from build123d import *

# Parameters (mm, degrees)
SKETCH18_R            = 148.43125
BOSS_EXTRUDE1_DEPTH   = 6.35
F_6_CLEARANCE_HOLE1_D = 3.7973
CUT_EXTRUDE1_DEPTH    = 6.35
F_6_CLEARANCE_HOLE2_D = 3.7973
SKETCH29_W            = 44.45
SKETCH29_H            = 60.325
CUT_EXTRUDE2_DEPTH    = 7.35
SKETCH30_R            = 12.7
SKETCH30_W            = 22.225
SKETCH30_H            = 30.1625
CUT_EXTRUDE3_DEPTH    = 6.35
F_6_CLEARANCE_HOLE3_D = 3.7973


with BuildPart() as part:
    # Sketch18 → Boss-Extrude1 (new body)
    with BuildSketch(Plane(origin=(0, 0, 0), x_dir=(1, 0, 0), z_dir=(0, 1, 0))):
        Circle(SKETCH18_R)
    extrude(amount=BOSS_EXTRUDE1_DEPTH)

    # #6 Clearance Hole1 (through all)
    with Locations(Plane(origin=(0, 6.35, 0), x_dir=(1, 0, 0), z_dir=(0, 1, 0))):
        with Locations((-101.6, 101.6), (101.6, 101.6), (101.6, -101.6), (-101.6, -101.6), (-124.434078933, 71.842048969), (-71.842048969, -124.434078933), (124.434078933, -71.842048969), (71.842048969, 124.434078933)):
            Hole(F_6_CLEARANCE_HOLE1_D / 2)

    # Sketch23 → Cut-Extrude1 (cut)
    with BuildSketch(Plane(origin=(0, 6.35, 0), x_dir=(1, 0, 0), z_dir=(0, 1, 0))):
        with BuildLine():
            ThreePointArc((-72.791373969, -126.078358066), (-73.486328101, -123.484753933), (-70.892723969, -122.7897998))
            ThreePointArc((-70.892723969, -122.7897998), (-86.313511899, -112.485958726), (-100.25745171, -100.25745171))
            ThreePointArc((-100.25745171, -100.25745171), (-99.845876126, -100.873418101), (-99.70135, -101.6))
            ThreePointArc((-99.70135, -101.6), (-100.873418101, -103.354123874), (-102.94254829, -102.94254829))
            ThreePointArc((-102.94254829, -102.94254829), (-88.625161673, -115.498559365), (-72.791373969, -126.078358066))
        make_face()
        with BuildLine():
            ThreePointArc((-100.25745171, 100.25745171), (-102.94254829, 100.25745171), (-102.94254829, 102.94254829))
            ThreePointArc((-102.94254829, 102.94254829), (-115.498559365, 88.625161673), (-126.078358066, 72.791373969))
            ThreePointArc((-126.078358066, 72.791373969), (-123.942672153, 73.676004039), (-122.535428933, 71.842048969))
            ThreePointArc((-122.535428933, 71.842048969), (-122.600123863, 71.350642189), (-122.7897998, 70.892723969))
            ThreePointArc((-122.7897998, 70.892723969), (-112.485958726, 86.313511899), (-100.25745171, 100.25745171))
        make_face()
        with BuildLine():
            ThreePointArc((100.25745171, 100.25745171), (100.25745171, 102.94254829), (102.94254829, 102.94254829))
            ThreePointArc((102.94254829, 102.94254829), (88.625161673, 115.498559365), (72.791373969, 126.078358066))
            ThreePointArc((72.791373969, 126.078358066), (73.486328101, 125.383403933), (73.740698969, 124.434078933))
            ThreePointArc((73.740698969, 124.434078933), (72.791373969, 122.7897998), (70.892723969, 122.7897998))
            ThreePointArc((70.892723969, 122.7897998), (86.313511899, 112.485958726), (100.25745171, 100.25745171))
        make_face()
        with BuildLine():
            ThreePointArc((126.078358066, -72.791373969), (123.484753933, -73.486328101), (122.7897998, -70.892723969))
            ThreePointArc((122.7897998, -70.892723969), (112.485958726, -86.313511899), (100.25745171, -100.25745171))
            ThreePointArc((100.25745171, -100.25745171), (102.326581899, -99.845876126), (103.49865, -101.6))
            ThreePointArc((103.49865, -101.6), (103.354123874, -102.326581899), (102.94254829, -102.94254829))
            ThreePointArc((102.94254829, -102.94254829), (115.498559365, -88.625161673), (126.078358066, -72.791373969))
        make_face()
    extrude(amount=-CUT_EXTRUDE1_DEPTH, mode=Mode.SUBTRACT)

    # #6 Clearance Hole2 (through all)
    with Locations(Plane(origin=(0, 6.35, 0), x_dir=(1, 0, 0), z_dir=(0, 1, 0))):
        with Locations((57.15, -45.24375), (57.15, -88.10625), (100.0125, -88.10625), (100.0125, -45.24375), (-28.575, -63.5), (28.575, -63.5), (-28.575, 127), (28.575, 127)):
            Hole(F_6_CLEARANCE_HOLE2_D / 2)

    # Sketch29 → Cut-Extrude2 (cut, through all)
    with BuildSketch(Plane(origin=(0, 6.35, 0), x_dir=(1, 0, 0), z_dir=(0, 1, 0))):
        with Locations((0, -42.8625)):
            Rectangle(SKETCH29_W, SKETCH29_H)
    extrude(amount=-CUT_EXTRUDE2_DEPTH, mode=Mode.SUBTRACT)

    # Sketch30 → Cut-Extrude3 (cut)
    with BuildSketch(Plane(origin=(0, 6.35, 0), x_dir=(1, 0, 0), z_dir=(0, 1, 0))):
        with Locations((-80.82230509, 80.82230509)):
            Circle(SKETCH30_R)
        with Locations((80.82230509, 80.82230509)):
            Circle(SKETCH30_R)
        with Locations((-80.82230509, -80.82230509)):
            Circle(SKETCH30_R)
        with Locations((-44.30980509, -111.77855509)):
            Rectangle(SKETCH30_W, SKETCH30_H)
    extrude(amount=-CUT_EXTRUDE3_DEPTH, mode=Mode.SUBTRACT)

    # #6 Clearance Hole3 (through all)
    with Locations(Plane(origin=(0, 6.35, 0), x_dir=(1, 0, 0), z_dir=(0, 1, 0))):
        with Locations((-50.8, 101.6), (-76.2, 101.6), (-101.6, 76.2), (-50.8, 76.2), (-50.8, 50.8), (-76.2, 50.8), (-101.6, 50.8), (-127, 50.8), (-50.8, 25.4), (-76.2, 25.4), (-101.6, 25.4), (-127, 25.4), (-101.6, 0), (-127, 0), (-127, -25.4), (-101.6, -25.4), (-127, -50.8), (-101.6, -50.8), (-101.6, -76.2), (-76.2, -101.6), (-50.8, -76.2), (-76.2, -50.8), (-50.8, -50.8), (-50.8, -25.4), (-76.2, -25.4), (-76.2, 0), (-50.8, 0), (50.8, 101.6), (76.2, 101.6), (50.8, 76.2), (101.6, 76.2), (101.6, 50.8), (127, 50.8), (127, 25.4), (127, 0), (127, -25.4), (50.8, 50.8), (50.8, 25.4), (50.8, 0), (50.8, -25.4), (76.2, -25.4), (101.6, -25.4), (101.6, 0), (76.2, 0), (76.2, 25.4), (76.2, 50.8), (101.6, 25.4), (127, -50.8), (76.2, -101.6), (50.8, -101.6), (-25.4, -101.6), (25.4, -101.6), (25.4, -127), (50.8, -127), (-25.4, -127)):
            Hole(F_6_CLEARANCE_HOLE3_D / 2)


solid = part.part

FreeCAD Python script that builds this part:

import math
import FreeCAD as App
import Part
import Sketcher

V = App.Vector
Q = App.Units.Quantity


def add_polygon(sketch, points):
    """Adds a closed chain of lines whose ends are joined by coincident constraints."""
    first, n = sketch.GeometryCount, len(points)
    for a, b in zip(points, points[1:] + points[:1]):
        sketch.addGeometry(Part.LineSegment(App.Vector(*a, 0), App.Vector(*b, 0)), False)
    for i in range(n):
        sketch.addConstraint(Sketcher.Constraint("Coincident", first + i, 2, first + (i + 1) % n, 1))

doc = App.newDocument("Part")
body = doc.addObject("PartDesign::Body", "Body")

# Sketch on XZ plane
sketch1 = doc.addObject("Sketcher::SketchObject", "Sketch")
body.addObject(sketch1)
sketch1.AttachmentSupport = (doc.XZ_Plane, [""])
sketch1.MapMode = "FlatFace"
sketch1.addGeometry(Part.Circle(V(0, 0, 0), V(0, 0, 1), 148.43125), False)
sketch1.addConstraint([
    Sketcher.Constraint("Coincident", 0, 3, -1, 1),
    Sketcher.Constraint("Diameter", 0, Q("11.6875 in")),
])
pad1 = doc.addObject("PartDesign::Pad", "Pad")
body.addObject(pad1)
pad1.Profile = sketch1
pad1.Length = Q("0.25 in")
pad1.Reversed = True

# Sketch on XZ plane
sketch2 = doc.addObject("Sketcher::SketchObject", "Sketch001")
body.addObject(sketch2)
sketch2.AttachmentSupport = (doc.XZ_Plane, [""])
sketch2.MapMode = "FlatFace"
sketch2.AttachmentOffset = App.Placement(V(0, 0, -0.25 * 25.4), App.Rotation())
sketch2.addGeometry([
    Part.Circle(V(-101.6, -101.6, 0), V(0, 0, 1), 1.89865),  # 0
    Part.Circle(V(101.6, -101.6, 0), V(0, 0, 1), 1.89865),  # 1
    Part.Circle(V(101.6, 101.6, 0), V(0, 0, 1), 1.89865),  # 2
    Part.Circle(V(-101.6, 101.6, 0), V(0, 0, 1), 1.89865),  # 3
    Part.Circle(V(-124.434079, -71.842049, 0), V(0, 0, 1), 1.89865),  # 4
    Part.Circle(V(-71.842049, 124.434079, 0), V(0, 0, 1), 1.89865),  # 5
    Part.Circle(V(124.434079, 71.842049, 0), V(0, 0, 1), 1.89865),  # 6
    Part.Circle(V(71.842049, -124.434079, 0), V(0, 0, 1), 1.89865),  # 7
], False)
sketch2.addConstraint([
    Sketcher.Constraint("Equal", 0, 1),
    Sketcher.Constraint("Equal", 1, 2),
    Sketcher.Constraint("Equal", 2, 3),
    Sketcher.Constraint("Equal", 3, 4),
    Sketcher.Constraint("Equal", 4, 5),
    Sketcher.Constraint("Equal", 5, 6),
    Sketcher.Constraint("Equal", 6, 7),
    Sketcher.Constraint("Symmetric", 0, 3, 2, 3, -1, 1),
    Sketcher.Constraint("Symmetric", 1, 3, 3, 3, -1, 1),
    Sketcher.Constraint("Symmetric", 4, 3, 6, 3, -1, 1),
    Sketcher.Constraint("Symmetric", 5, 3, 7, 3, -1, 1),
    Sketcher.Constraint("Symmetric", 0, 3, 1, 3, -2),
    Sketcher.Constraint("DistanceX", 0, 3, -1, 1, Q("4 in")),
    Sketcher.Constraint("DistanceY", 0, 3, -1, 1, Q("4 in")),
    Sketcher.Constraint("Diameter", 0, Q("0.1495 in")),
    Sketcher.Constraint("DistanceX", 4, 3, -1, 1, Q("124.434079 mm")),
    Sketcher.Constraint("DistanceY", 4, 3, -1, 1, Q("71.842049 mm")),
    Sketcher.Constraint("DistanceX", 5, 3, -1, 1, Q("71.842049 mm")),
    Sketcher.Constraint("DistanceY", -1, 1, 5, 3, Q("124.434079 mm")),
])
doc.recompute()
hole = doc.addObject("PartDesign::Hole", "Hole")
body.addObject(hole)
hole.Profile = sketch2
hole.ThreadType = "None"
hole.Diameter = Q("0.1495 in")
hole.DepthType = "ThroughAll"
hole.Reversed = True

# Sketch on XZ plane
sketch3 = doc.addObject("Sketcher::SketchObject", "Sketch002")
body.addObject(sketch3)
sketch3.AttachmentSupport = (doc.XZ_Plane, [""])
sketch3.MapMode = "FlatFace"
sketch3.AttachmentOffset = App.Placement(V(0, 0, -0.25 * 25.4), App.Rotation())
sketch3.addGeometry([
    Part.ArcOfCircle(Part.Circle(V(-71.842049, 124.434079, 0), V(0, 0, 1), 1.89865), math.radians(120), math.radians(300)),  # 0
    Part.ArcOfCircle(Part.Circle(V(0, 0, 0), V(0, 0, 1), 141.785448), math.radians(120), math.radians(135)),  # 1
    Part.ArcOfCircle(Part.Circle(V(-101.6, 101.6, 0), V(0, 0, 1), 1.89865), math.radians(-45), math.radians(0)),  # 2
    Part.ArcOfCircle(Part.Circle(V(-101.6, 101.6, 0), V(0, 0, 1), 1.89865), math.radians(0), math.radians(135)),  # 3
    Part.ArcOfCircle(Part.Circle(V(0, 0, 0), V(0, 0, 1), 145.582748), math.radians(120), math.radians(135)),  # 4
    Part.ArcOfCircle(Part.Circle(V(-101.6, -101.6, 0), V(0, 0, 1), 1.89865), math.radians(45), math.radians(225)),  # 5
    Part.ArcOfCircle(Part.Circle(V(0, 0, 0), V(0, 0, 1), 145.582748), math.radians(-150), math.radians(-135)),  # 6
    Part.ArcOfCircle(Part.Circle(V(-124.434079, -71.842049, 0), V(0, 0, 1), 1.89865), math.radians(-150), math.radians(0)),  # 7
    Part.ArcOfCircle(Part.Circle(V(-124.434079, -71.842049, 0), V(0, 0, 1), 1.89865), math.radians(0), math.radians(30)),  # 8
    Part.ArcOfCircle(Part.Circle(V(0, 0, 0), V(0, 0, 1), 141.785448), math.radians(-150), math.radians(-135)),  # 9
    Part.ArcOfCircle(Part.Circle(V(101.6, -101.6, 0), V(0, 0, 1), 1.89865), math.radians(135), math.radians(315)),  # 10
    Part.ArcOfCircle(Part.Circle(V(0, 0, 0), V(0, 0, 1), 145.582748), math.radians(-60), math.radians(-45)),  # 11
    Part.ArcOfCircle(Part.Circle(V(71.842049, -124.434079, 0), V(0, 0, 1), 1.89865), math.radians(-60), math.radians(0)),  # 12
    Part.ArcOfCircle(Part.Circle(V(71.842049, -124.434079, 0), V(0, 0, 1), 1.89865), math.radians(0), math.radians(120)),  # 13
    Part.ArcOfCircle(Part.Circle(V(0, 0, 0), V(0, 0, 1), 141.785448), math.radians(-60), math.radians(-45)),  # 14
    Part.ArcOfCircle(Part.Circle(V(124.434079, 71.842049, 0), V(0, 0, 1), 1.89865), math.radians(30), math.radians(210)),  # 15
    Part.ArcOfCircle(Part.Circle(V(0, 0, 0), V(0, 0, 1), 141.785448), math.radians(30), math.radians(45)),  # 16
    Part.ArcOfCircle(Part.Circle(V(101.6, 101.6, 0), V(0, 0, 1), 1.89865), math.radians(-135), math.radians(0)),  # 17
    Part.ArcOfCircle(Part.Circle(V(101.6, 101.6, 0), V(0, 0, 1), 1.89865), math.radians(0), math.radians(45)),  # 18
    Part.ArcOfCircle(Part.Circle(V(0, 0, 0), V(0, 0, 1), 145.582748), math.radians(30), math.radians(45)),  # 19
], False)
sketch3.addConstraint([
    Sketcher.Constraint("Tangent", 0, 2, 1, 1),
    Sketcher.Constraint("Tangent", 1, 2, 2, 1),
    Sketcher.Constraint("Tangent", 2, 2, 3, 1),
    Sketcher.Constraint("Tangent", 3, 2, 4, 2),
    Sketcher.Constraint("Tangent", 4, 1, 0, 1),
    Sketcher.Constraint("Tangent", 5, 2, 6, 2),
    Sketcher.Constraint("Tangent", 6, 1, 7, 1),
    Sketcher.Constraint("Tangent", 7, 2, 8, 1),
    Sketcher.Constraint("Tangent", 8, 2, 9, 1),
    Sketcher.Constraint("Tangent", 9, 2, 5, 1),
    Sketcher.Constraint("Tangent", 10, 2, 11, 2),
    Sketcher.Constraint("Tangent", 11, 1, 12, 1),
    Sketcher.Constraint("Tangent", 12, 2, 13, 1),
    Sketcher.Constraint("Tangent", 13, 2, 14, 1),
    Sketcher.Constraint("Tangent", 14, 2, 10, 1),
    Sketcher.Constraint("Tangent", 15, 2, 16, 1),
    Sketcher.Constraint("Tangent", 16, 2, 17, 1),
    Sketcher.Constraint("Tangent", 17, 2, 18, 1),
    Sketcher.Constraint("Tangent", 18, 2, 19, 2),
    Sketcher.Constraint("Tangent", 19, 1, 15, 1),
    Sketcher.Constraint("Coincident", 1, 3, -1, 1),
    Sketcher.Constraint("Coincident", 4, 3, -1, 1),
    Sketcher.Constraint("Coincident", 6, 3, -1, 1),
    Sketcher.Constraint("Coincident", 9, 3, -1, 1),
    Sketcher.Constraint("Coincident", 11, 3, -1, 1),
    Sketcher.Constraint("Coincident", 14, 3, -1, 1),
    Sketcher.Constraint("Coincident", 16, 3, -1, 1),
    Sketcher.Constraint("Coincident", 19, 3, -1, 1),
    Sketcher.Constraint("Equal", 0, 2),
    Sketcher.Constraint("Equal", 3, 5),
    Sketcher.Constraint("Equal", 4, 6),
    Sketcher.Constraint("Equal", 5, 7),
    Sketcher.Constraint("Equal", 8, 10),
    Sketcher.Constraint("Equal", 6, 11),
    Sketcher.Constraint("Equal", 10, 12),
    Sketcher.Constraint("Equal", 13, 15),
    Sketcher.Constraint("Equal", 14, 16),
    Sketcher.Constraint("Equal", 15, 17),
    Sketcher.Constraint("Horizontal", 5, 3, 10, 3),
    Sketcher.Constraint("Horizontal", 3, 3, 17, 3),
    Sketcher.Constraint("Horizontal", 18, 3, 2, 2),
    Sketcher.Constraint("Horizontal", 8, 3, 7, 2),
    Sketcher.Constraint("Horizontal", 13, 3, 12, 2),
    Sketcher.Constraint("Horizontal", 2, 2, 17, 2),
    Sketcher.Constraint("Vertical", 3, 3, 5, 3),
    Sketcher.Constraint("DistanceX", 2, 3, -1, 1, Q("4 in")),
    Sketcher.Constraint("DistanceY", -1, 1, 2, 3, Q("4 in")),
    Sketcher.Constraint("Radius", 0, Q("1.89865 mm")),
    Sketcher.Constraint("DistanceY", -1, 1, 0, 2, Q("122.7898 mm")),
    Sketcher.Constraint("DistanceX", 8, 2, -1, 1, Q("122.7898 mm")),
    Sketcher.Constraint("DistanceX", -1, 1, 12, 2, Q("73.740699 mm")),
    Sketcher.Constraint("DistanceX", -1, 1, 15, 2, Q("122.7898 mm")),
])
pocket1 = doc.addObject("PartDesign::Pocket", "Pocket")
body.addObject(pocket1)
pocket1.Profile = sketch3
pocket1.Length = Q("0.25 in")
pocket1.Reversed = True

# Sketch on XZ plane
sketch4 = doc.addObject("Sketcher::SketchObject", "Sketch003")
body.addObject(sketch4)
sketch4.AttachmentSupport = (doc.XZ_Plane, [""])
sketch4.MapMode = "FlatFace"
sketch4.AttachmentOffset = App.Placement(V(0, 0, -0.25 * 25.4), App.Rotation())
sketch4.addGeometry([
    Part.Circle(V(57.15, 45.24375, 0), V(0, 0, 1), 1.89865),  # 0
    Part.Circle(V(57.15, 88.10625, 0), V(0, 0, 1), 1.89865),  # 1
    Part.Circle(V(100.0125, 88.10625, 0), V(0, 0, 1), 1.89865),  # 2
    Part.Circle(V(100.0125, 45.24375, 0), V(0, 0, 1), 1.89865),  # 3
    Part.Circle(V(-28.575, 63.5, 0), V(0, 0, 1), 1.89865),  # 4
    Part.Circle(V(28.575, 63.5, 0), V(0, 0, 1), 1.89865),  # 5
    Part.Circle(V(-28.575, -127, 0), V(0, 0, 1), 1.89865),  # 6
    Part.Circle(V(28.575, -127, 0), V(0, 0, 1), 1.89865),  # 7
], False)
sketch4.addConstraint([
    Sketcher.Constraint("Equal", 0, 1),
    Sketcher.Constraint("Equal", 1, 2),
    Sketcher.Constraint("Equal", 2, 3),
    Sketcher.Constraint("Equal", 3, 4),
    Sketcher.Constraint("Equal", 4, 5),
    Sketcher.Constraint("Equal", 5, 6),
    Sketcher.Constraint("Equal", 6, 7),
    Sketcher.Constraint("Symmetric", 4, 3, 5, 3, -2),
    Sketcher.Constraint("Symmetric", 6, 3, 7, 3, -2),
    Sketcher.Constraint("Horizontal", 1, 3, 2, 3),
    Sketcher.Constraint("Horizontal", 0, 3, 3, 3),
    Sketcher.Constraint("Vertical", 0, 3, 1, 3),
    Sketcher.Constraint("Vertical", 2, 3, 3, 3),
    Sketcher.Constraint("Vertical", 4, 3, 6, 3),
    Sketcher.Constraint("DistanceY", 6, 3, -1, 1, Q("5 in")),
    Sketcher.Constraint("Diameter", 0, Q("0.1495 in")),
    Sketcher.Constraint("DistanceY", -1, 1, 4, 3, Q("2.5 in")),
    Sketcher.Constraint("DistanceX", -1, 1, 0, 3, Q("2.25 in")),
    Sketcher.Constraint("DistanceX", 4, 3, 5, 3, Q("2.25 in")),
    Sketcher.Constraint("DistanceY", -1, 1, 0, 3, Q("1.78125 in")),
    Sketcher.Constraint("DistanceY", -1, 1, 1, 3, Q("3.46875 in")),
    Sketcher.Constraint("DistanceX", -1, 1, 2, 3, Q("3.9375 in")),
])
doc.recompute()
hole2 = doc.addObject("PartDesign::Hole", "Hole001")
body.addObject(hole2)
hole2.Profile = sketch4
hole2.ThreadType = "None"
hole2.Diameter = Q("0.1495 in")
hole2.DepthType = "ThroughAll"
hole2.Reversed = True

# Sketch on XZ plane
sketch5 = doc.addObject("Sketcher::SketchObject", "Sketch004")
body.addObject(sketch5)
sketch5.AttachmentSupport = (doc.XZ_Plane, [""])
sketch5.MapMode = "FlatFace"
sketch5.AttachmentOffset = App.Placement(V(0, 0, -0.25 * 25.4), App.Rotation())
add_polygon(sketch5, [(-22.225, 12.7), (-22.225, 73.025), (22.225, 73.025), (22.225, 12.7)])  # lines 0-3
sketch5.addConstraint([
    Sketcher.Constraint("Vertical", 0),
    Sketcher.Constraint("Horizontal", 1),
    Sketcher.Constraint("Vertical", 2),
    Sketcher.Constraint("Horizontal", 3),
    Sketcher.Constraint("DistanceX", 1, 1, 1, 2, Q("1.75 in")),
    Sketcher.Constraint("DistanceY", -1, 1, 2, 2, Q("0.5 in")),
    Sketcher.Constraint("DistanceY", 0, 1, 0, 2, Q("2.375 in")),
    Sketcher.Constraint("DistanceX", 0, 2, -1, 1, Q("0.875 in")),
])
pocket2 = doc.addObject("PartDesign::Pocket", "Pocket001")
body.addObject(pocket2)
pocket2.Profile = sketch5
pocket2.Type = "ThroughAll"
pocket2.Reversed = True

# Sketch on XZ plane
sketch6 = doc.addObject("Sketcher::SketchObject", "Sketch005")
body.addObject(sketch6)
sketch6.AttachmentSupport = (doc.XZ_Plane, [""])
sketch6.MapMode = "FlatFace"
sketch6.AttachmentOffset = App.Placement(V(0, 0, -0.25 * 25.4), App.Rotation())
sketch6.addGeometry(Part.Circle(V(-80.822305, -80.822305, 0), V(0, 0, 1), 12.7), False)  # 0
sketch6.addGeometry(Part.Circle(V(80.822305, -80.822305, 0), V(0, 0, 1), 12.7), False)  # 1
sketch6.addGeometry(Part.Circle(V(-80.822305, 80.822305, 0), V(0, 0, 1), 12.7), False)  # 2
add_polygon(sketch6, [(-55.422305, 96.697305), (-55.422305, 126.859805), (-33.197305, 126.859805), (-33.197305, 96.697305)])  # lines 3-6
sketch6.addConstraint([
    Sketcher.Constraint("Vertical", 3),
    Sketcher.Constraint("Horizontal", 4),
    Sketcher.Constraint("Vertical", 5),
    Sketcher.Constraint("Horizontal", 6),
    Sketcher.Constraint("Equal", 0, 1),
    Sketcher.Constraint("Equal", 1, 2),
    Sketcher.Constraint("Symmetric", 1, 3, 2, 3, -1, 1),
    Sketcher.Constraint("Symmetric", 0, 3, 1, 3, -2),
    Sketcher.Constraint("Diameter", 0, Q("1 in")),
    Sketcher.Constraint("DistanceX", 2, 3, 3, 2, Q("1 in")),
    Sketcher.Constraint("DistanceX", 4, 1, 4, 2, Q("0.875 in")),
    Sketcher.Constraint("DistanceY", 3, 1, 3, 2, Q("1.1875 in")),
    Sketcher.Constraint("DistanceY", 2, 3, 3, 2, Q("1.8125 in")),
    Sketcher.Constraint("DistanceX", 0, 3, 1, 3, Q("161.64461 mm")),
    Sketcher.Constraint("DistanceY", 0, 3, 2, 3, Q("161.64461 mm")),
])
pocket3 = doc.addObject("PartDesign::Pocket", "Pocket002")
body.addObject(pocket3)
pocket3.Profile = sketch6
pocket3.Length = Q("0.25 in")
pocket3.Reversed = True

# Sketch on XZ plane
sketch7 = doc.addObject("Sketcher::SketchObject", "Sketch006")
body.addObject(sketch7)
sketch7.AttachmentSupport = (doc.XZ_Plane, [""])
sketch7.MapMode = "FlatFace"
sketch7.AttachmentOffset = App.Placement(V(0, 0, -0.25 * 25.4), App.Rotation())
sketch7.addGeometry([
    Part.Circle(V(-50.8, -101.6, 0), V(0, 0, 1), 1.89865),  # 0
    Part.Circle(V(-76.2, -101.6, 0), V(0, 0, 1), 1.89865),  # 1
    Part.Circle(V(-101.6, -76.2, 0), V(0, 0, 1), 1.89865),  # 2
    Part.Circle(V(-50.8, -76.2, 0), V(0, 0, 1), 1.89865),  # 3
    Part.Circle(V(-50.8, -50.8, 0), V(0, 0, 1), 1.89865),  # 4
    Part.Circle(V(-76.2, -50.8, 0), V(0, 0, 1), 1.89865),  # 5
    Part.Circle(V(-101.6, -50.8, 0), V(0, 0, 1), 1.89865),  # 6
    Part.Circle(V(-127, -50.8, 0), V(0, 0, 1), 1.89865),  # 7
    Part.Circle(V(-50.8, -25.4, 0), V(0, 0, 1), 1.89865),  # 8
    Part.Circle(V(-76.2, -25.4, 0), V(0, 0, 1), 1.89865),  # 9
    Part.Circle(V(-101.6, -25.4, 0), V(0, 0, 1), 1.89865),  # 10
    Part.Circle(V(-127, -25.4, 0), V(0, 0, 1), 1.89865),  # 11
    Part.Circle(V(-101.6, 0, 0), V(0, 0, 1), 1.89865),  # 12
    Part.Circle(V(-127, 0, 0), V(0, 0, 1), 1.89865),  # 13
    Part.Circle(V(-127, 25.4, 0), V(0, 0, 1), 1.89865),  # 14
    Part.Circle(V(-101.6, 25.4, 0), V(0, 0, 1), 1.89865),  # 15
    Part.Circle(V(-127, 50.8, 0), V(0, 0, 1), 1.89865),  # 16
    Part.Circle(V(-101.6, 50.8, 0), V(0, 0, 1), 1.89865),  # 17
    Part.Circle(V(-101.6, 76.2, 0), V(0, 0, 1), 1.89865),  # 18
    Part.Circle(V(-76.2, 101.6, 0), V(0, 0, 1), 1.89865),  # 19
    Part.Circle(V(-50.8, 76.2, 0), V(0, 0, 1), 1.89865),  # 20
    Part.Circle(V(-76.2, 50.8, 0), V(0, 0, 1), 1.89865),  # 21
    Part.Circle(V(-50.8, 50.8, 0), V(0, 0, 1), 1.89865),  # 22
    Part.Circle(V(-50.8, 25.4, 0), V(0, 0, 1), 1.89865),  # 23
    Part.Circle(V(-76.2, 25.4, 0), V(0, 0, 1), 1.89865),  # 24
    Part.Circle(V(-76.2, 0, 0), V(0, 0, 1), 1.89865),  # 25
    Part.Circle(V(-50.8, 0, 0), V(0, 0, 1), 1.89865),  # 26
    Part.Circle(V(50.8, -101.6, 0), V(0, 0, 1), 1.89865),  # 27
    Part.Circle(V(76.2, -101.6, 0), V(0, 0, 1), 1.89865),  # 28
    Part.Circle(V(50.8, -76.2, 0), V(0, 0, 1), 1.89865),  # 29
    Part.Circle(V(101.6, -76.2, 0), V(0, 0, 1), 1.89865),  # 30
    Part.Circle(V(101.6, -50.8, 0), V(0, 0, 1), 1.89865),  # 31
    Part.Circle(V(127, -50.8, 0), V(0, 0, 1), 1.89865),  # 32
    Part.Circle(V(127, -25.4, 0), V(0, 0, 1), 1.89865),  # 33
    Part.Circle(V(127, 0, 0), V(0, 0, 1), 1.89865),  # 34
    Part.Circle(V(127, 25.4, 0), V(0, 0, 1), 1.89865),  # 35
    Part.Circle(V(50.8, -50.8, 0), V(0, 0, 1), 1.89865),  # 36
    Part.Circle(V(50.8, -25.4, 0), V(0, 0, 1), 1.89865),  # 37
    Part.Circle(V(50.8, 0, 0), V(0, 0, 1), 1.89865),  # 38
    Part.Circle(V(50.8, 25.4, 0), V(0, 0, 1), 1.89865),  # 39
    Part.Circle(V(76.2, 25.4, 0), V(0, 0, 1), 1.89865),  # 40
    Part.Circle(V(101.6, 25.4, 0), V(0, 0, 1), 1.89865),  # 41
    Part.Circle(V(101.6, 0, 0), V(0, 0, 1), 1.89865),  # 42
    Part.Circle(V(76.2, 0, 0), V(0, 0, 1), 1.89865),  # 43
    Part.Circle(V(76.2, -25.4, 0), V(0, 0, 1), 1.89865),  # 44
    Part.Circle(V(76.2, -50.8, 0), V(0, 0, 1), 1.89865),  # 45
    Part.Circle(V(101.6, -25.4, 0), V(0, 0, 1), 1.89865),  # 46
    Part.Circle(V(127, 50.8, 0), V(0, 0, 1), 1.89865),  # 47
    Part.Circle(V(76.2, 101.6, 0), V(0, 0, 1), 1.89865),  # 48
    Part.Circle(V(50.8, 101.6, 0), V(0, 0, 1), 1.89865),  # 49
    Part.Circle(V(-25.4, 101.6, 0), V(0, 0, 1), 1.89865),  # 50
    Part.Circle(V(25.4, 101.6, 0), V(0, 0, 1), 1.89865),  # 51
    Part.Circle(V(25.4, 127, 0), V(0, 0, 1), 1.89865),  # 52
    Part.Circle(V(50.8, 127, 0), V(0, 0, 1), 1.89865),  # 53
    Part.Circle(V(-25.4, 127, 0), V(0, 0, 1), 1.89865),  # 54
], False)
sketch7.addConstraint([
    Sketcher.Constraint("Equal", 0, 1),
    Sketcher.Constraint("Equal", 1, 2),
    Sketcher.Constraint("Equal", 2, 3),
    Sketcher.Constraint("Equal", 3, 4),
    Sketcher.Constraint("Equal", 4, 5),
    Sketcher.Constraint("Equal", 5, 6),
    Sketcher.Constraint("Equal", 6, 7),
    Sketcher.Constraint("Equal", 7, 8),
    Sketcher.Constraint("Equal", 8, 9),
    Sketcher.Constraint("Equal", 9, 10),
    Sketcher.Constraint("Equal", 10, 11),
    Sketcher.Constraint("Equal", 11, 12),
    Sketcher.Constraint("Equal", 12, 13),
    Sketcher.Constraint("Equal", 13, 14),
    Sketcher.Constraint("Equal", 14, 15),
    Sketcher.Constraint("Equal", 15, 16),
    Sketcher.Constraint("Equal", 16, 17),
    Sketcher.Constraint("Equal", 17, 18),
    Sketcher.Constraint("Equal", 18, 19),
    Sketcher.Constraint("Equal", 19, 20),
    Sketcher.Constraint("Equal", 20, 21),
    Sketcher.Constraint("Equal", 21, 22),
    Sketcher.Constraint("Equal", 22, 23),
    Sketcher.Constraint("Equal", 23, 24),
    Sketcher.Constraint("Equal", 24, 25),
    Sketcher.Constraint("Equal", 25, 26),
    Sketcher.Constraint("Equal", 26, 27),
    Sketcher.Constraint("Equal", 27, 28),
    Sketcher.Constraint("Equal", 28, 29),
    Sketcher.Constraint("Equal", 29, 30),
    Sketcher.Constraint("Equal", 30, 31),
    Sketcher.Constraint("Equal", 31, 32),
    Sketcher.Constraint("Equal", 32, 33),
    Sketcher.Constraint("Equal", 33, 34),
    Sketcher.Constraint("Equal", 34, 35),
    Sketcher.Constraint("Equal", 35, 36),
    Sketcher.Constraint("Equal", 36, 37),
    Sketcher.Constraint("Equal", 37, 38),
    Sketcher.Constraint("Equal", 38, 39),
    Sketcher.Constraint("Equal", 39, 40),
    Sketcher.Constraint("Equal", 40, 41),
    Sketcher.Constraint("Equal", 41, 42),
    Sketcher.Constraint("Equal", 42, 43),
    Sketcher.Constraint("Equal", 43, 44),
    Sketcher.Constraint("Equal", 44, 45),
    Sketcher.Constraint("Equal", 45, 46),
    Sketcher.Constraint("Equal", 46, 47),
    Sketcher.Constraint("Equal", 47, 48),
    Sketcher.Constraint("Equal", 48, 49),
    Sketcher.Constraint("Equal", 49, 50),
    Sketcher.Constraint("Equal", 50, 51),
    Sketcher.Constraint("Equal", 51, 52),
    Sketcher.Constraint("Equal", 52, 53),
    Sketcher.Constraint("Equal", 53, 54),
    Sketcher.Constraint("Symmetric", 19, 3, 28, 3, -1, 1),
    Sketcher.Constraint("Symmetric", 20, 3, 29, 3, -1, 1),
    Sketcher.Constraint("Symmetric", 18, 3, 30, 3, -1, 1),
    Sketcher.Constraint("Symmetric", 17, 3, 31, 3, -1, 1),
    Sketcher.Constraint("Symmetric", 16, 3, 32, 3, -1, 1),
    Sketcher.Constraint("Symmetric", 14, 3, 33, 3, -1, 1),
    Sketcher.Constraint("Symmetric", 13, 3, 34, 3, -1, 1),
    Sketcher.Constraint("Symmetric", 11, 3, 35, 3, -1, 1),
    Sketcher.Constraint("Symmetric", 22, 3, 36, 3, -1, 1),
    Sketcher.Constraint("Symmetric", 23, 3, 37, 3, -1, 1),
    Sketcher.Constraint("Symmetric", 26, 3, 38, 3, -1, 1),
    Sketcher.Constraint("Symmetric", 8, 3, 39, 3, -1, 1),
    Sketcher.Constraint("Symmetric", 9, 3, 40, 3, -1, 1),
    Sketcher.Constraint("Symmetric", 10, 3, 41, 3, -1, 1),
    Sketcher.Constraint("Symmetric", 12, 3, 42, 3, -1, 1),
    Sketcher.Constraint("Symmetric", 25, 3, 43, 3, -1, 1),
    Sketcher.Constraint("Symmetric", 24, 3, 44, 3, -1, 1),
    Sketcher.Constraint("Symmetric", 21, 3, 45, 3, -1, 1),
    Sketcher.Constraint("Symmetric", 15, 3, 46, 3, -1, 1),
    Sketcher.Constraint("Symmetric", 7, 3, 47, 3, -1, 1),
    Sketcher.Constraint("Symmetric", 1, 3, 48, 3, -1, 1),
    Sketcher.Constraint("Symmetric", 0, 3, 49, 3, -1, 1),
    Sketcher.Constraint("Symmetric", 0, 3, 27, 3, -2),
    Sketcher.Constraint("Symmetric", 1, 3, 28, 3, -2),
    Sketcher.Constraint("Symmetric", 3, 3, 29, 3, -2),
    Sketcher.Constraint("Symmetric", 2, 3, 30, 3, -2),
    Sketcher.Constraint("Symmetric", 6, 3, 31, 3, -2),
    Sketcher.Constraint("Symmetric", 7, 3, 32, 3, -2),
    Sketcher.Constraint("Symmetric", 11, 3, 33, 3, -2),
    Sketcher.Constraint("Symmetric", 4, 3, 36, 3, -2),
    Sketcher.Constraint("Symmetric", 8, 3, 37, 3, -2),
    Sketcher.Constraint("Symmetric", 24, 3, 40, 3, -2),
    Sketcher.Constraint("Symmetric", 15, 3, 41, 3, -2),
    Sketcher.Constraint("Symmetric", 5, 3, 45, 3, -2),
    Sketcher.Constraint("Symmetric", 50, 3, 51, 3, -2),
    Sketcher.Constraint("Symmetric", 52, 3, 54, 3, -2),
    Sketcher.Constraint("PointOnObject", 12, 3, -1),
    Sketcher.Constraint("PointOnObject", 13, 3, -1),
    Sketcher.Constraint("PointOnObject", 25, 3, -1),
    Sketcher.Constraint("PointOnObject", 26, 3, -1),
    Sketcher.Constraint("Horizontal", 0, 3, 1, 3),
    Sketcher.Constraint("Horizontal", 2, 3, 3, 3),
    Sketcher.Constraint("Horizontal", 4, 3, 5, 3),
    Sketcher.Constraint("Horizontal", 5, 3, 6, 3),
    Sketcher.Constraint("Horizontal", 6, 3, 7, 3),
    Sketcher.Constraint("Horizontal", 8, 3, 9, 3),
    Sketcher.Constraint("Horizontal", 9, 3, 10, 3),
    Sketcher.Constraint("Horizontal", 10, 3, 11, 3),
    Sketcher.Constraint("Horizontal", 49, 3, 50, 3),
    Sketcher.Constraint("Horizontal", 52, 3, 53, 3),
    Sketcher.Constraint("Vertical", 0, 3, 3, 3),
    Sketcher.Constraint("Vertical", 3, 3, 4, 3),
    Sketcher.Constraint("Vertical", 1, 3, 5, 3),
    Sketcher.Constraint("Vertical", 2, 3, 6, 3),
    Sketcher.Constraint("Vertical", 4, 3, 8, 3),
    Sketcher.Constraint("Vertical", 5, 3, 9, 3),
    Sketcher.Constraint("Vertical", 6, 3, 10, 3),
    Sketcher.Constraint("Vertical", 7, 3, 11, 3),
    Sketcher.Constraint("Vertical", 10, 3, 12, 3),
    Sketcher.Constraint("Vertical", 11, 3, 13, 3),
    Sketcher.Constraint("Vertical", 24, 3, 25, 3),
    Sketcher.Constraint("Vertical", 23, 3, 26, 3),
    Sketcher.Constraint("Vertical", 51, 3, 52, 3),
    Sketcher.Constraint("Vertical", 49, 3, 53, 3),
    Sketcher.Constraint("DistanceX", 0, 3, -1, 1, Q("2 in")),
    Sketcher.Constraint("DistanceY", 0, 3, -1, 1, Q("4 in")),
    Sketcher.Constraint("DistanceX", 1, 3, -1, 1, Q("3 in")),
    Sketcher.Constraint("DistanceX", 2, 3, -1, 1, Q("4 in")),
    Sketcher.Constraint("DistanceY", 2, 3, -1, 1, Q("3 in")),
    Sketcher.Constraint("DistanceY", 4, 3, -1, 1, Q("2 in")),
    Sketcher.Constraint("DistanceX", 7, 3, -1, 1, Q("5 in")),
    Sketcher.Constraint("DistanceY", 8, 3, -1, 1, Q("1 in")),
    Sketcher.Constraint("DistanceX", 50, 3, -1, 1, Q("1 in")),
    Sketcher.Constraint("DistanceY", -1, 1, 52, 3, Q("5 in")),
    Sketcher.Constraint("Diameter", 0, Q("0.1495 in")),
])
doc.recompute()
hole3 = doc.addObject("PartDesign::Hole", "Hole002")
body.addObject(hole3)
hole3.Profile = sketch7
hole3.ThreadType = "None"
hole3.Diameter = Q("0.1495 in")
hole3.DepthType = "ThroughAll"
hole3.Reversed = True

doc.recompute()
